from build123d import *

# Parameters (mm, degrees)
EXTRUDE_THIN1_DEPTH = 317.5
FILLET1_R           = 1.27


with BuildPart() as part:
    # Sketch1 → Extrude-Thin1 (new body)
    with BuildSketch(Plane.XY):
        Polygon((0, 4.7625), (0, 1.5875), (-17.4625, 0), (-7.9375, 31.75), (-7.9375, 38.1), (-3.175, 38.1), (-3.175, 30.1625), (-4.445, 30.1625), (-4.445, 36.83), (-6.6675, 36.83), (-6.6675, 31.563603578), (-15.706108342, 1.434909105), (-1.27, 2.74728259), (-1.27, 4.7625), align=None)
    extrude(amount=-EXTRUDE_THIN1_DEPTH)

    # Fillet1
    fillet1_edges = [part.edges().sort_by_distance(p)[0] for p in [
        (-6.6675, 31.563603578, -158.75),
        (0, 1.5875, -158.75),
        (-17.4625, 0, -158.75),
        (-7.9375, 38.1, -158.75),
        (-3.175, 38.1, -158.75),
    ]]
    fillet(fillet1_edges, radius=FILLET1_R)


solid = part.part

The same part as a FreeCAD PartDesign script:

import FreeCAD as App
import Part
import Sketcher

V = App.Vector
Q = App.Units.Quantity


def edges_at(feature, points):
    """Names of the edges that pass closest to the given points."""
    edges = feature.Shape.Edges
    near = lambda p: min(range(len(edges)), key=lambda i: edges[i].distToShape(Part.Vertex(*p))[0])
    return sorted({f"Edge{near(p) + 1}" for p in points})

doc = App.newDocument("Part")
params = doc.addObject("Spreadsheet::Sheet", "Params")
for row, (alias, value) in enumerate([
    ("sketch1_width", "0.05 in"),
    ("sketch1_height", "0.25 in"),
    ("sketch1_width2", "0.1875 in"),
    ("sketch1_height2", "0.125 in"),
    ("sketch1_height3", "0.3125 in"),
    ("pad1_length", "12.5 in"),
    ("fillet_radius", "0.05 in"),
], start=1):
    params.set(f"A{row}", alias)
    params.set(f"B{row}", "=" + value)
    params.setAlias(f"B{row}", alias)

body = doc.addObject("PartDesign::Body", "Body")

sketch1 = body.newObject("Sketcher::SketchObject", "Sketch")
sketch1.AttachmentSupport = (doc.getObject("XY_Plane"), [""])
sketch1.MapMode = "FlatFace"
sketch1.addGeometry([
    Part.LineSegment(V(0, 1.6, 0), V(0, 4.8, 0)),
    Part.LineSegment(V(0, 4.8, 0), V(-1.3, 4.8, 0)),
    Part.LineSegment(V(-1.3, 4.8, 0), V(-1.3, 2.7, 0)),
    Part.LineSegment(V(-1.3, 2.7, 0), V(-15.7, 1.4, 0)),
    Part.LineSegment(V(-15.7, 1.4, 0), V(-6.7, 31.6, 0)),
    Part.LineSegment(V(-6.7, 31.6, 0), V(-6.7, 36.8, 0)),
    Part.LineSegment(V(-6.7, 36.8, 0), V(-4.4, 36.8, 0)),
    Part.LineSegment(V(-4.4, 36.8, 0), V(-4.4, 30.2, 0)),
    Part.LineSegment(V(-4.4, 30.2, 0), V(-3.2, 30.2, 0)),
    Part.LineSegment(V(-3.2, 30.2, 0), V(-3.2, 38.1, 0)),
    Part.LineSegment(V(-3.2, 38.1, 0), V(-7.9, 38.1, 0)),
    Part.LineSegment(V(-7.9, 38.1, 0), V(-7.9, 31.8, 0)),
    Part.LineSegment(V(-7.9, 31.8, 0), V(-17.5, 0, 0)),
    Part.LineSegment(V(-17.5, 0, 0), V(0, 1.6, 0)),
], False)
sketch1.addConstraint([
    Sketcher.Constraint("Coincident", 0, 2, 1, 1),
    Sketcher.Constraint("Coincident", 1, 2, 2, 1),
    Sketcher.Constraint("Coincident", 2, 2, 3, 1),
    Sketcher.Constraint("Coincident", 3, 2, 4, 1),
    Sketcher.Constraint("Coincident", 4, 2, 5, 1),
    Sketcher.Constraint("Coincident", 5, 2, 6, 1),
    Sketcher.Constraint("Coincident", 6, 2, 7, 1),
    Sketcher.Constraint("Coincident", 7, 2, 8, 1),
    Sketcher.Constraint("Coincident", 8, 2, 9, 1),
    Sketcher.Constraint("Coincident", 9, 2, 10, 1),
    Sketcher.Constraint("Coincident", 10, 2, 11, 1),
    Sketcher.Constraint("Coincident", 11, 2, 12, 1),
    Sketcher.Constraint("Coincident", 12, 2, 13, 1),
    Sketcher.Constraint("Coincident", 13, 2, 0, 1),
    Sketcher.Constraint("Vertical", 0),
    Sketcher.Constraint("Horizontal", 1),
    Sketcher.Constraint("Vertical", 2),
    Sketcher.Constraint("Vertical", 5),
    Sketcher.Constraint("Horizontal", 6),
    Sketcher.Constraint("Vertical", 7),
    Sketcher.Constraint("Horizontal", 8),
    Sketcher.Constraint("Vertical", 9),
    Sketcher.Constraint("Horizontal", 10),
    Sketcher.Constraint("Vertical", 11),
    Sketcher.Constraint("PointOnObject", 0, 2, -2),
    Sketcher.Constraint("PointOnObject", 12, 2, -1),
    Sketcher.Constraint("Parallel", 4, 12),
    Sketcher.Constraint("Parallel", 3, 13),
    Sketcher.Constraint("Equal", 1, 8),
    Sketcher.Constraint("DistanceY", 1, 2, 7, 2, Q("1 in")),
    Sketcher.Constraint("DistanceX", 1, 2, 1, 1, Q("0.05 in")),
    Sketcher.Constraint("DistanceY", 11, 2, 11, 1, Q("0.25 in")),
    Sketcher.Constraint("DistanceY", -1, 1, 9, 2, Q("1.5 in")),
    Sketcher.Constraint("DistanceY", 11, 2, 5, 2, Q("0.2 in")),
    Sketcher.Constraint("DistanceX", 10, 2, 10, 1, Q("0.1875 in")),
    Sketcher.Constraint("DistanceY", 0, 1, 0, 2, Q("0.125 in")),
    Sketcher.Constraint("DistanceY", 9, 1, 9, 2, Q("0.3125 in")),
    Sketcher.Constraint("DistanceX", 10, 2, 5, 2, Q("0.05 in")),
    Sketcher.Constraint("DistanceX", 6, 2, -1, 1, Q("0.175 in")),
    Sketcher.Constraint("DistanceX", 12, 2, -1, 1, Q("0.6875 in")),
    Sketcher.Constraint("Distance", 3, Q("14.495639 mm")),
    Sketcher.Constraint("DistanceY", 2, 2, 2, 1, Q("2.015217 mm")),
])
sketch1.setExpression("Constraints[30]", "Params.sketch1_width")
sketch1.setExpression("Constraints[31]", "Params.sketch1_height")
sketch1.setExpression("Constraints[34]", "Params.sketch1_width2")
sketch1.setExpression("Constraints[35]", "Params.sketch1_height2")
sketch1.setExpression("Constraints[36]", "Params.sketch1_height3")
pad1 = body.newObject("PartDesign::Pad", "Pad")
pad1.Profile = sketch1
pad1.setExpression("Length", "Params.pad1_length")
pad1.Reversed = True
doc.recompute()

fillet = body.newObject("PartDesign::Fillet", "Fillet")
fillet.Base = (pad1, edges_at(pad1, [
    (-6.668, 31.564, -158.75),
    (0, 1.587, -158.75),
    (-17.462, 0, -158.75),
    (-7.938, 38.1, -158.75),
    (-3.175, 38.1, -158.75),
]))
fillet.setExpression("Radius", "Params.fillet_radius")

doc.recompute()
